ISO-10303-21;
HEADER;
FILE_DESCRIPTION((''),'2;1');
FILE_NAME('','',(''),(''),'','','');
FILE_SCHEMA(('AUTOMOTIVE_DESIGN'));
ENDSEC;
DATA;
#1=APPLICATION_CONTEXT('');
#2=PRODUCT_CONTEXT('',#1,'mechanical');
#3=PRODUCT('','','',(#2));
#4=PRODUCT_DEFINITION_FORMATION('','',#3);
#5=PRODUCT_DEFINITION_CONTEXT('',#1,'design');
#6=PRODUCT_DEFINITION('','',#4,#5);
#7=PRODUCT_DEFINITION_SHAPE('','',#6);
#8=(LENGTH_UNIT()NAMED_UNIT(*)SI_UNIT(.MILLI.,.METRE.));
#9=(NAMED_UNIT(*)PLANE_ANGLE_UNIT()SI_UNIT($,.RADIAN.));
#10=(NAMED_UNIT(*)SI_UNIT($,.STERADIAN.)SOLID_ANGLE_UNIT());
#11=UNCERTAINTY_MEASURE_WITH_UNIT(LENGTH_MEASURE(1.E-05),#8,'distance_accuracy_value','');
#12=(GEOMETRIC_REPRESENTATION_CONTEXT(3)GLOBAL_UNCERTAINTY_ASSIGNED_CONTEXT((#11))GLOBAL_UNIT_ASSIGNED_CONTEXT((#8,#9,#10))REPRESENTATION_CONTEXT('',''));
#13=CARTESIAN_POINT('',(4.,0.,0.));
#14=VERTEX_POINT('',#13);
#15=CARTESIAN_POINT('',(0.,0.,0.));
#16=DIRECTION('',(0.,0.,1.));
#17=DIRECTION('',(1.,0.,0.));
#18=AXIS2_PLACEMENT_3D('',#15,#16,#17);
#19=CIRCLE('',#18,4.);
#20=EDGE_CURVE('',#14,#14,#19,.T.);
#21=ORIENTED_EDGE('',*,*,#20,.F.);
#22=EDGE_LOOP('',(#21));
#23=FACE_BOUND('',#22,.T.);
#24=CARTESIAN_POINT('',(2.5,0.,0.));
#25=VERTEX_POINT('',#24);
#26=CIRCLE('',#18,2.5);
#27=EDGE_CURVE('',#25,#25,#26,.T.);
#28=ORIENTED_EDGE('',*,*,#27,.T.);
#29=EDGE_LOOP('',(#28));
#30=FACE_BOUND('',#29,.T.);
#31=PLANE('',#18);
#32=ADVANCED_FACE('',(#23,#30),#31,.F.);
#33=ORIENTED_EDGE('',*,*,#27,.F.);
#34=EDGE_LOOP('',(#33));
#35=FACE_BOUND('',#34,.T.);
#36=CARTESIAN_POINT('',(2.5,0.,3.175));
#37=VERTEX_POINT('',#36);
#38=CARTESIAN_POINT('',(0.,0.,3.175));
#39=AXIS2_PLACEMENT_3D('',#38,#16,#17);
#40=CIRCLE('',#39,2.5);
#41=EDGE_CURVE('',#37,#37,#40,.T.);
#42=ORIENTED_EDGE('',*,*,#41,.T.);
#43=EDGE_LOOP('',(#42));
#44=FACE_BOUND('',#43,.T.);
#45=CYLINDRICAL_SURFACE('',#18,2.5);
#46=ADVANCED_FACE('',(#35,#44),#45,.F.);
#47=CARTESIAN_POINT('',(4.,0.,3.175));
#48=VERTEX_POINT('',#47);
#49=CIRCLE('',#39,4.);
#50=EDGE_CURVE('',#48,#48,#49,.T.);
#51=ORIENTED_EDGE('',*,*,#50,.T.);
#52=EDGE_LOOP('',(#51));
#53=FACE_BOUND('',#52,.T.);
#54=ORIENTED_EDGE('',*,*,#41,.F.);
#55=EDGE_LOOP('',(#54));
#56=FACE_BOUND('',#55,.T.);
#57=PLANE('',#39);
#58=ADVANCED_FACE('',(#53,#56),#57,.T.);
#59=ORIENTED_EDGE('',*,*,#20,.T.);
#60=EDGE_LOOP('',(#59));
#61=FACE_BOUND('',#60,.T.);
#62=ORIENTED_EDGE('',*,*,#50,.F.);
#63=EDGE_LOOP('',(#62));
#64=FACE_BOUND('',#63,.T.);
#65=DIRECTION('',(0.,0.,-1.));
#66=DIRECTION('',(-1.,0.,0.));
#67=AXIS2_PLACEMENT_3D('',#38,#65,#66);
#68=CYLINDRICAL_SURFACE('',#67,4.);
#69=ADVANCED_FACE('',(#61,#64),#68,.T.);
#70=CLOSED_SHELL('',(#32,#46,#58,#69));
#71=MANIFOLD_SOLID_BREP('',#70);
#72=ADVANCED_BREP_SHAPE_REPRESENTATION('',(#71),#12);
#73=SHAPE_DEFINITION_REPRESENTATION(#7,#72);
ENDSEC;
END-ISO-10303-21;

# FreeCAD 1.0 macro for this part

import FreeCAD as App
import Part
import Sketcher

V = App.Vector
Q = App.Units.Quantity

doc = App.newDocument("Part")
body = doc.addObject("PartDesign::Body", "Body")

sketch1 = body.newObject("Sketcher::SketchObject", "Sketch")
sketch1.AttachmentSupport = (doc.getObject("XY_Plane"), [""])
sketch1.MapMode = "FlatFace"
sketch1.addGeometry(Part.Circle(V(0, 0, 0), V(0, 0, 1), 4), False)
sketch1.addConstraint([
    Sketcher.Constraint("Coincident", 0, 3, -1, 1),
    Sketcher.Constraint("Diameter", 0, Q("8 mm")),
])
pad1 = body.newObject("PartDesign::Pad", "Pad")
pad1.Profile = sketch1
pad1.Length = 3.175

sketch2 = body.newObject("Sketcher::SketchObject", "Sketch001")
sketch2.AttachmentSupport = (doc.getObject("XY_Plane"), [""])
sketch2.MapMode = "FlatFace"
sketch2.AttachmentOffset = App.Placement(V(0, 0, 3.175), App.Rotation())
sketch2.addGeometry(Part.Circle(V(0, 0, 0), V(0, 0, 1), 2.5), False)
sketch2.addConstraint([
    Sketcher.Constraint("Coincident", 0, 3, -1, 1),
    Sketcher.Constraint("Diameter", 0, Q("5 mm")),
])
pocket1 = body.newObject("PartDesign::Pocket", "Pocket")
pocket1.Profile = sketch2
pocket1.Type = "ThroughAll"

doc.recompute()
